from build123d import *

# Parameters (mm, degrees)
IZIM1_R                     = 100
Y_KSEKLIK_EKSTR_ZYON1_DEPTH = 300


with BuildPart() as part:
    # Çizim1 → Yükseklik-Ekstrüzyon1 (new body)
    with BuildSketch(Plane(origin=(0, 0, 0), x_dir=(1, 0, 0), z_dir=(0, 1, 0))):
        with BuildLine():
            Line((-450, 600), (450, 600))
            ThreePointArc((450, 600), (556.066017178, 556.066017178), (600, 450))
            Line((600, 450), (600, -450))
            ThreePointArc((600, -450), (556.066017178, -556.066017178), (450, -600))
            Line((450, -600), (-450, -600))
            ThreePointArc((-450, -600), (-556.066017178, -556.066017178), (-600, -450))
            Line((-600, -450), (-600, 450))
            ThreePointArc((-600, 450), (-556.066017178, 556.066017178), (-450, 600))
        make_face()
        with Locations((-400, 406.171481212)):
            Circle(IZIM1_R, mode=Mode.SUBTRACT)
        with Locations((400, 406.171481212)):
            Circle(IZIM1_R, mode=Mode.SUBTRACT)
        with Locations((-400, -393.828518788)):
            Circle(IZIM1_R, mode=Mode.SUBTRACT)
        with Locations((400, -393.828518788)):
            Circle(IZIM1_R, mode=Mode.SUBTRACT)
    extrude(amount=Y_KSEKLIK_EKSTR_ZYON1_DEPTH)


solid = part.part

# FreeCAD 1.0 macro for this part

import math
import FreeCAD as App
import Part
import Sketcher
Q = App.Units.Quantity

doc = App.newDocument("Part")
body = doc.addObject("PartDesign::Body", "Body")

# Sketch on XZ plane
sketch1 = doc.addObject("Sketcher::SketchObject", "Sketch")
body.addObject(sketch1)
sketch1.AttachmentSupport = (doc.XZ_Plane, [""])
sketch1.MapMode = "FlatFace"
sketch1.addGeometry([
    Part.LineSegment(App.Vector(450, -600, 0), App.Vector(-450, -600, 0)),  # 0
    Part.ArcOfCircle(Part.Circle(App.Vector(-450, -450, 0), App.Vector(0, 0, 1), 150), math.radians(180), math.radians(270)),  # 1
    Part.LineSegment(App.Vector(-600, -450, 0), App.Vector(-600, 450, 0)),  # 2
    Part.ArcOfCircle(Part.Circle(App.Vector(-450, 450, 0), App.Vector(0, 0, 1), 150), math.radians(90), math.radians(180)),  # 3
    Part.LineSegment(App.Vector(-450, 600, 0), App.Vector(450, 600, 0)),  # 4
    Part.ArcOfCircle(Part.Circle(App.Vector(450, 450, 0), App.Vector(0, 0, 1), 150), math.radians(0), math.radians(90)),  # 5
    Part.LineSegment(App.Vector(600, 450, 0), App.Vector(600, -450, 0)),  # 6
    Part.ArcOfCircle(Part.Circle(App.Vector(450, -450, 0), App.Vector(0, 0, 1), 150), math.radians(-90), math.radians(0)),  # 7
    Part.Circle(App.Vector(400, 394, 0), App.Vector(0, 0, 1), 100),  # 8
    Part.Circle(App.Vector(-400, 394, 0), App.Vector(0, 0, 1), 100),  # 9
    Part.Circle(App.Vector(400, -406, 0), App.Vector(0, 0, 1), 100),  # 10
    Part.Circle(App.Vector(-400, -406, 0), App.Vector(0, 0, 1), 100),  # 11
], False)
sketch1.addConstraint([
    Sketcher.Constraint("Tangent", 0, 2, 1, 2),
    Sketcher.Constraint("Tangent", 1, 1, 2, 1),
    Sketcher.Constraint("Tangent", 2, 2, 3, 2),
    Sketcher.Constraint("Tangent", 3, 1, 4, 1),
    Sketcher.Constraint("Tangent", 4, 2, 5, 2),
    Sketcher.Constraint("Tangent", 5, 1, 6, 1),
    Sketcher.Constraint("Tangent", 6, 2, 7, 2),
    Sketcher.Constraint("Tangent", 7, 1, 0, 1),
    Sketcher.Constraint("Horizontal", 0),
    Sketcher.Constraint("Vertical", 2),
    Sketcher.Constraint("Horizontal", 4),
    Sketcher.Constraint("Vertical", 6),
    Sketcher.Constraint("Equal", 1, 3),
    Sketcher.Constraint("Equal", 3, 5),
    Sketcher.Constraint("Equal", 5, 7),
    Sketcher.Constraint("Equal", 8, 9),
    Sketcher.Constraint("Equal", 9, 10),
    Sketcher.Constraint("Equal", 10, 11),
    Sketcher.Constraint("Symmetric", 1, 3, 5, 3, -1, 1),
    Sketcher.Constraint("Symmetric", 8, 3, 9, 3, -2),
    Sketcher.Constraint("Symmetric", 10, 3, 11, 3, -2),
    Sketcher.Constraint("Vertical", 8, 3, 10, 3),
    Sketcher.Constraint("Equal", 4, 2),
    Sketcher.Constraint("Diameter", 8, Q("200 mm")),
    Sketcher.Constraint("Radius", 1, Q("150 mm")),
    Sketcher.Constraint("DistanceX", 0, 2, 0, 1, Q("900 mm")),
    Sketcher.Constraint("DistanceX", -1, 1, 8, 3, Q("400 mm")),
    Sketcher.Constraint("DistanceY", 10, 3, 8, 3, Q("800 mm")),
    Sketcher.Constraint("DistanceY", -1, 1, 8, 3, Q("393.828519 mm")),
])
pad1 = doc.addObject("PartDesign::Pad", "Pad")
body.addObject(pad1)
pad1.Profile = sketch1
pad1.Length = 300
pad1.Reversed = True

doc.recompute()
